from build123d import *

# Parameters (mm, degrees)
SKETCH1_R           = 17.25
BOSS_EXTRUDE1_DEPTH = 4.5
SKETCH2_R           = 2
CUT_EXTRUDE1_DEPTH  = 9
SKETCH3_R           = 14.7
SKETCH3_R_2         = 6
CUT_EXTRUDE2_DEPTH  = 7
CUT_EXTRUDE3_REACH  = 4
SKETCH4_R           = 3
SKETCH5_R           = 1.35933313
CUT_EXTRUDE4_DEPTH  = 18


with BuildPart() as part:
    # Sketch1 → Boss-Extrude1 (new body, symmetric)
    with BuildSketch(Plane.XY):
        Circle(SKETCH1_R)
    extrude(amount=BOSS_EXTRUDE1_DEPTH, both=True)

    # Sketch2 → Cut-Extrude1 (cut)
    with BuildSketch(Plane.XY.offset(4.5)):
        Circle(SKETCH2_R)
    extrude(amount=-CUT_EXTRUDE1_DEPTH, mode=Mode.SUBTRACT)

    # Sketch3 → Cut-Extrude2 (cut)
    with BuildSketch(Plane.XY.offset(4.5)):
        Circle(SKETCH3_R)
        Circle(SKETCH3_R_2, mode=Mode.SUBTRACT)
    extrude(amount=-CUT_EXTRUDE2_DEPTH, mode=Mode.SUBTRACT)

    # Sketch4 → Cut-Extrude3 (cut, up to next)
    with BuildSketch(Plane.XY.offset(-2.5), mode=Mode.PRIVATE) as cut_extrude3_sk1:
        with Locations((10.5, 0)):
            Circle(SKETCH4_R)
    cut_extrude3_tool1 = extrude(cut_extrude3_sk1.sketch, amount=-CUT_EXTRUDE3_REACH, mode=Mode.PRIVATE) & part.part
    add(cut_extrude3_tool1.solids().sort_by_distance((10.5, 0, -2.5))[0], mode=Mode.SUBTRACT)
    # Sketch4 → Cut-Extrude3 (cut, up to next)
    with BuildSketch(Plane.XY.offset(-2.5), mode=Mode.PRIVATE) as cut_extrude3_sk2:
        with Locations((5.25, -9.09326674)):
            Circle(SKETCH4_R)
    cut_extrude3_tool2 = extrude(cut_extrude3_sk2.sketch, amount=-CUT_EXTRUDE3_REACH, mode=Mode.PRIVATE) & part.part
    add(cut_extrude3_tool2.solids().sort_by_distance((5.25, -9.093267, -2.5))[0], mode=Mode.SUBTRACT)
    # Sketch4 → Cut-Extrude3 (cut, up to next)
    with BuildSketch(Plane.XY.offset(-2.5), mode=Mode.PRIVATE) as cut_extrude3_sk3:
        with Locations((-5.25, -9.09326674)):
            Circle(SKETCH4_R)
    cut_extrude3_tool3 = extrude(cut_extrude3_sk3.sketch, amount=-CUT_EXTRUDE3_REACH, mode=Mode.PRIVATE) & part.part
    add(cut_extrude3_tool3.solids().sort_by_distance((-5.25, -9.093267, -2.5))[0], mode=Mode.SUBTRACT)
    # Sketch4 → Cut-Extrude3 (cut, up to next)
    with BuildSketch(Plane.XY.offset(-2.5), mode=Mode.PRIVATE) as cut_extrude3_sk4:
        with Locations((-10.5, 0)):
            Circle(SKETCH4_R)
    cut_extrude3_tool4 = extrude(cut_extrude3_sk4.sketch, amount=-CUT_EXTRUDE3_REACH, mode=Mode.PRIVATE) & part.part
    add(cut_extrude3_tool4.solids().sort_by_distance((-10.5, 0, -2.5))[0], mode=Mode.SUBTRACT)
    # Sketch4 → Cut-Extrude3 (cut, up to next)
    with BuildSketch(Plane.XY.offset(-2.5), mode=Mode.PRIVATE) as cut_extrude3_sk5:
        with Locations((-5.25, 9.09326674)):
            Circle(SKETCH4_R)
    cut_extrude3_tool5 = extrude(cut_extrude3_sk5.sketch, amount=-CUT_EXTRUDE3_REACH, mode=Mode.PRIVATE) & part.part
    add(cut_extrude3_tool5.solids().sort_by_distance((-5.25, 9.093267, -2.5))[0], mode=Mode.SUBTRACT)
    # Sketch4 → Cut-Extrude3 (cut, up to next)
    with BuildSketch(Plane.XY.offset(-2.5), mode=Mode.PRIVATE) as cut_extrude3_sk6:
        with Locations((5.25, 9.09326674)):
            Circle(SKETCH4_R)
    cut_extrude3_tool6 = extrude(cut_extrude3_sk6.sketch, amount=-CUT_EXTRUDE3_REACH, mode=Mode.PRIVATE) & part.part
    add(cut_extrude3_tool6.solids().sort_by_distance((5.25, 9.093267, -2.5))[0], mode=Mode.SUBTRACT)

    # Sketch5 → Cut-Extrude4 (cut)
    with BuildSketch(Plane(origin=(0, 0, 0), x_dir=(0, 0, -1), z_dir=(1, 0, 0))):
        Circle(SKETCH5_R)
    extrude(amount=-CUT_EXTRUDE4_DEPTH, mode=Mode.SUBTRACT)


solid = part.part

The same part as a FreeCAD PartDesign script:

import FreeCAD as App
import Part
import Sketcher
from FreeCAD import Vector

doc = App.newDocument("Part")
params = doc.addObject("Spreadsheet::Sheet", "Params")
for row, (alias, value) in enumerate([
    ("sketch1_diameter", "34.5 mm"),
    ("pad1_length", "9 mm"),
    ("sketch2_diameter", "4 mm"),
    ("pocket1_length", "9 mm"),
    ("sketch3_diameter", "12 mm"),
    ("sketch3_diameter2", "29.4 mm"),
    ("pocket2_length", "7 mm"),
    ("sketch4_diameter", "6 mm"),
    ("sketch5_diameter", "6 mm"),
    ("sketch6_diameter", "6 mm"),
    ("sketch7_diameter", "6 mm"),
    ("sketch8_diameter", "6 mm"),
    ("sketch9_diameter", "6 mm"),
    ("pocket9_length", "18 mm"),
], start=1):
    params.set(f"A{row}", alias)
    params.set(f"B{row}", "=" + value)
    params.setAlias(f"B{row}", alias)

body = doc.addObject("PartDesign::Body", "Body")

# Sketch on XY plane
sketch1 = body.newObject("Sketcher::SketchObject", "Sketch")
sketch1.AttachmentSupport = (doc.getObject("XY_Plane"), [""])
sketch1.MapMode = "FlatFace"
sketch1.addGeometry(Part.Circle(Vector(0, 0, 0), Vector(0, 0, 1), 17), False)
sketch1.addConstraint([
    Sketcher.Constraint("Coincident", 0, 3, -1, 1),
    Sketcher.Constraint("Diameter", 0, 34.5),
])
sketch1.setExpression("Constraints[1]", "Params.sketch1_diameter")
pad1 = body.newObject("PartDesign::Pad", "Pad")
pad1.Profile = sketch1
pad1.setExpression("Length", "Params.pad1_length")
pad1.Midplane = True

# Sketch on XY plane
sketch2 = body.newObject("Sketcher::SketchObject", "Sketch001")
sketch2.AttachmentSupport = (doc.getObject("XY_Plane"), [""])
sketch2.MapMode = "FlatFace"
sketch2.AttachmentOffset = App.Placement(Vector(0, 0, 4.5), App.Rotation())
sketch2.addGeometry(Part.Circle(Vector(0, 0, 0), Vector(0, 0, 1), 2), False)
sketch2.addConstraint([
    Sketcher.Constraint("Coincident", 0, 3, -1, 1),
    Sketcher.Constraint("Diameter", 0, 4.0),
])
sketch2.setExpression("Constraints[1]", "Params.sketch2_diameter")
pocket1 = body.newObject("PartDesign::Pocket", "Pocket")
pocket1.Profile = sketch2
pocket1.setExpression("Length", "Params.pocket1_length")

# Sketch on XY plane
sketch3 = body.newObject("Sketcher::SketchObject", "Sketch002")
sketch3.AttachmentSupport = (doc.getObject("XY_Plane"), [""])
sketch3.MapMode = "FlatFace"
sketch3.AttachmentOffset = App.Placement(Vector(0, 0, 4.5), App.Rotation())
sketch3.addGeometry([
    Part.Circle(Vector(0, 0, 0), Vector(0, 0, 1), 15),
    Part.Circle(Vector(0, 0, 0), Vector(0, 0, 1), 6),
], False)
sketch3.addConstraint([
    Sketcher.Constraint("Coincident", 0, 3, -1, 1),
    Sketcher.Constraint("Coincident", 1, 3, -1, 1),
    Sketcher.Constraint("Diameter", 1, 12.0),
    Sketcher.Constraint("Diameter", 0, 29.4),
])
sketch3.setExpression("Constraints[2]", "Params.sketch3_diameter")
sketch3.setExpression("Constraints[3]", "Params.sketch3_diameter2")
pocket2 = body.newObject("PartDesign::Pocket", "Pocket001")
pocket2.Profile = sketch3
pocket2.setExpression("Length", "Params.pocket2_length")

# Sketch on XY plane
sketch4 = body.newObject("Sketcher::SketchObject", "Sketch003")
sketch4.AttachmentSupport = (doc.getObject("XY_Plane"), [""])
sketch4.MapMode = "FlatFace"
sketch4.AttachmentOffset = App.Placement(Vector(0, 0, -2.5), App.Rotation())
sketch4.addGeometry(Part.Circle(Vector(10.5, 0, 0), Vector(0, 0, 1), 3), False)
sketch4.addConstraint([
    Sketcher.Constraint("PointOnObject", 0, 3, -1),
    Sketcher.Constraint("Diameter", 0, 6.0),
    Sketcher.Constraint("DistanceX", -1, 1, 0, 3, 10.5),
])
sketch4.setExpression("Constraints[1]", "Params.sketch4_diameter")
pocket3 = body.newObject("PartDesign::Pocket", "Pocket002")
pocket3.Profile = sketch4
pocket3.Type = "UpToFirst"

# Sketch on XY plane
sketch5 = body.newObject("Sketcher::SketchObject", "Sketch004")
sketch5.AttachmentSupport = (doc.getObject("XY_Plane"), [""])
sketch5.MapMode = "FlatFace"
sketch5.AttachmentOffset = App.Placement(Vector(0, 0, -2.5), App.Rotation())
sketch5.addGeometry(Part.Circle(Vector(5.2, -9.1, 0), Vector(0, 0, 1), 3), False)
sketch5.addConstraint([
    Sketcher.Constraint("Diameter", 0, 6.0),
    Sketcher.Constraint("DistanceX", -1, 1, 0, 3, 5.25),
    Sketcher.Constraint("DistanceY", 0, 3, -1, 1, 9.093267),
])
sketch5.setExpression("Constraints[0]", "Params.sketch5_diameter")
pocket4 = body.newObject("PartDesign::Pocket", "Pocket003")
pocket4.Profile = sketch5
pocket4.Type = "UpToFirst"

# Sketch on XY plane
sketch6 = body.newObject("Sketcher::SketchObject", "Sketch005")
sketch6.AttachmentSupport = (doc.getObject("XY_Plane"), [""])
sketch6.MapMode = "FlatFace"
sketch6.AttachmentOffset = App.Placement(Vector(0, 0, -2.5), App.Rotation())
sketch6.addGeometry(Part.Circle(Vector(-5.2, -9.1, 0), Vector(0, 0, 1), 3), False)
sketch6.addConstraint([
    Sketcher.Constraint("Diameter", 0, 6.0),
    Sketcher.Constraint("DistanceX", 0, 3, -1, 1, 5.25),
    Sketcher.Constraint("DistanceY", 0, 3, -1, 1, 9.093267),
])
sketch6.setExpression("Constraints[0]", "Params.sketch6_diameter")
pocket5 = body.newObject("PartDesign::Pocket", "Pocket004")
pocket5.Profile = sketch6
pocket5.Type = "UpToFirst"

# Sketch on XY plane
sketch7 = body.newObject("Sketcher::SketchObject", "Sketch006")
sketch7.AttachmentSupport = (doc.getObject("XY_Plane"), [""])
sketch7.MapMode = "FlatFace"
sketch7.AttachmentOffset = App.Placement(Vector(0, 0, -2.5), App.Rotation())
sketch7.addGeometry(Part.Circle(Vector(-10.5, 0, 0), Vector(0, 0, 1), 3), False)
sketch7.addConstraint([
    Sketcher.Constraint("PointOnObject", 0, 3, -1),
    Sketcher.Constraint("Diameter", 0, 6.0),
    Sketcher.Constraint("DistanceX", 0, 3, -1, 1, 10.5),
])
sketch7.setExpression("Constraints[1]", "Params.sketch7_diameter")
pocket6 = body.newObject("PartDesign::Pocket", "Pocket005")
pocket6.Profile = sketch7
pocket6.Type = "UpToFirst"

# Sketch on XY plane
sketch8 = body.newObject("Sketcher::SketchObject", "Sketch007")
sketch8.AttachmentSupport = (doc.getObject("XY_Plane"), [""])
sketch8.MapMode = "FlatFace"
sketch8.AttachmentOffset = App.Placement(Vector(0, 0, -2.5), App.Rotation())
sketch8.addGeometry(Part.Circle(Vector(-5.2, 9.1, 0), Vector(0, 0, 1), 3), False)
sketch8.addConstraint([
    Sketcher.Constraint("Diameter", 0, 6.0),
    Sketcher.Constraint("DistanceX", 0, 3, -1, 1, 5.25),
    Sketcher.Constraint("DistanceY", -1, 1, 0, 3, 9.093267),
])
sketch8.setExpression("Constraints[0]", "Params.sketch8_diameter")
pocket7 = body.newObject("PartDesign::Pocket", "Pocket006")
pocket7.Profile = sketch8
pocket7.Type = "UpToFirst"

# Sketch on XY plane
sketch9 = body.newObject("Sketcher::SketchObject", "Sketch008")
sketch9.AttachmentSupport = (doc.getObject("XY_Plane"), [""])
sketch9.MapMode = "FlatFace"
sketch9.AttachmentOffset = App.Placement(Vector(0, 0, -2.5), App.Rotation())
sketch9.addGeometry(Part.Circle(Vector(5.2, 9.1, 0), Vector(0, 0, 1), 3), False)
sketch9.addConstraint([
    Sketcher.Constraint("Diameter", 0, 6.0),
    Sketcher.Constraint("DistanceX", -1, 1, 0, 3, 5.25),
    Sketcher.Constraint("DistanceY", -1, 1, 0, 3, 9.093267),
])
sketch9.setExpression("Constraints[0]", "Params.sketch9_diameter")
pocket8 = body.newObject("PartDesign::Pocket", "Pocket007")
pocket8.Profile = sketch9
pocket8.Type = "UpToFirst"

# Sketch on YZ plane
sketch10 = body.newObject("Sketcher::SketchObject", "Sketch009")
sketch10.AttachmentSupport = (doc.getObject("YZ_Plane"), [""])
sketch10.MapMode = "FlatFace"
sketch10.addGeometry(Part.Circle(Vector(0, 0, 0), Vector(0, 0, 1), 1.4), False)
sketch10.addConstraint([
    Sketcher.Constraint("Coincident", 0, 3, -1, 1),
    Sketcher.Constraint("Diameter", 0, 2.718666),
])
pocket9 = body.newObject("PartDesign::Pocket", "Pocket008")
pocket9.Profile = sketch10
pocket9.setExpression("Length", "Params.pocket9_length")

doc.recompute()
